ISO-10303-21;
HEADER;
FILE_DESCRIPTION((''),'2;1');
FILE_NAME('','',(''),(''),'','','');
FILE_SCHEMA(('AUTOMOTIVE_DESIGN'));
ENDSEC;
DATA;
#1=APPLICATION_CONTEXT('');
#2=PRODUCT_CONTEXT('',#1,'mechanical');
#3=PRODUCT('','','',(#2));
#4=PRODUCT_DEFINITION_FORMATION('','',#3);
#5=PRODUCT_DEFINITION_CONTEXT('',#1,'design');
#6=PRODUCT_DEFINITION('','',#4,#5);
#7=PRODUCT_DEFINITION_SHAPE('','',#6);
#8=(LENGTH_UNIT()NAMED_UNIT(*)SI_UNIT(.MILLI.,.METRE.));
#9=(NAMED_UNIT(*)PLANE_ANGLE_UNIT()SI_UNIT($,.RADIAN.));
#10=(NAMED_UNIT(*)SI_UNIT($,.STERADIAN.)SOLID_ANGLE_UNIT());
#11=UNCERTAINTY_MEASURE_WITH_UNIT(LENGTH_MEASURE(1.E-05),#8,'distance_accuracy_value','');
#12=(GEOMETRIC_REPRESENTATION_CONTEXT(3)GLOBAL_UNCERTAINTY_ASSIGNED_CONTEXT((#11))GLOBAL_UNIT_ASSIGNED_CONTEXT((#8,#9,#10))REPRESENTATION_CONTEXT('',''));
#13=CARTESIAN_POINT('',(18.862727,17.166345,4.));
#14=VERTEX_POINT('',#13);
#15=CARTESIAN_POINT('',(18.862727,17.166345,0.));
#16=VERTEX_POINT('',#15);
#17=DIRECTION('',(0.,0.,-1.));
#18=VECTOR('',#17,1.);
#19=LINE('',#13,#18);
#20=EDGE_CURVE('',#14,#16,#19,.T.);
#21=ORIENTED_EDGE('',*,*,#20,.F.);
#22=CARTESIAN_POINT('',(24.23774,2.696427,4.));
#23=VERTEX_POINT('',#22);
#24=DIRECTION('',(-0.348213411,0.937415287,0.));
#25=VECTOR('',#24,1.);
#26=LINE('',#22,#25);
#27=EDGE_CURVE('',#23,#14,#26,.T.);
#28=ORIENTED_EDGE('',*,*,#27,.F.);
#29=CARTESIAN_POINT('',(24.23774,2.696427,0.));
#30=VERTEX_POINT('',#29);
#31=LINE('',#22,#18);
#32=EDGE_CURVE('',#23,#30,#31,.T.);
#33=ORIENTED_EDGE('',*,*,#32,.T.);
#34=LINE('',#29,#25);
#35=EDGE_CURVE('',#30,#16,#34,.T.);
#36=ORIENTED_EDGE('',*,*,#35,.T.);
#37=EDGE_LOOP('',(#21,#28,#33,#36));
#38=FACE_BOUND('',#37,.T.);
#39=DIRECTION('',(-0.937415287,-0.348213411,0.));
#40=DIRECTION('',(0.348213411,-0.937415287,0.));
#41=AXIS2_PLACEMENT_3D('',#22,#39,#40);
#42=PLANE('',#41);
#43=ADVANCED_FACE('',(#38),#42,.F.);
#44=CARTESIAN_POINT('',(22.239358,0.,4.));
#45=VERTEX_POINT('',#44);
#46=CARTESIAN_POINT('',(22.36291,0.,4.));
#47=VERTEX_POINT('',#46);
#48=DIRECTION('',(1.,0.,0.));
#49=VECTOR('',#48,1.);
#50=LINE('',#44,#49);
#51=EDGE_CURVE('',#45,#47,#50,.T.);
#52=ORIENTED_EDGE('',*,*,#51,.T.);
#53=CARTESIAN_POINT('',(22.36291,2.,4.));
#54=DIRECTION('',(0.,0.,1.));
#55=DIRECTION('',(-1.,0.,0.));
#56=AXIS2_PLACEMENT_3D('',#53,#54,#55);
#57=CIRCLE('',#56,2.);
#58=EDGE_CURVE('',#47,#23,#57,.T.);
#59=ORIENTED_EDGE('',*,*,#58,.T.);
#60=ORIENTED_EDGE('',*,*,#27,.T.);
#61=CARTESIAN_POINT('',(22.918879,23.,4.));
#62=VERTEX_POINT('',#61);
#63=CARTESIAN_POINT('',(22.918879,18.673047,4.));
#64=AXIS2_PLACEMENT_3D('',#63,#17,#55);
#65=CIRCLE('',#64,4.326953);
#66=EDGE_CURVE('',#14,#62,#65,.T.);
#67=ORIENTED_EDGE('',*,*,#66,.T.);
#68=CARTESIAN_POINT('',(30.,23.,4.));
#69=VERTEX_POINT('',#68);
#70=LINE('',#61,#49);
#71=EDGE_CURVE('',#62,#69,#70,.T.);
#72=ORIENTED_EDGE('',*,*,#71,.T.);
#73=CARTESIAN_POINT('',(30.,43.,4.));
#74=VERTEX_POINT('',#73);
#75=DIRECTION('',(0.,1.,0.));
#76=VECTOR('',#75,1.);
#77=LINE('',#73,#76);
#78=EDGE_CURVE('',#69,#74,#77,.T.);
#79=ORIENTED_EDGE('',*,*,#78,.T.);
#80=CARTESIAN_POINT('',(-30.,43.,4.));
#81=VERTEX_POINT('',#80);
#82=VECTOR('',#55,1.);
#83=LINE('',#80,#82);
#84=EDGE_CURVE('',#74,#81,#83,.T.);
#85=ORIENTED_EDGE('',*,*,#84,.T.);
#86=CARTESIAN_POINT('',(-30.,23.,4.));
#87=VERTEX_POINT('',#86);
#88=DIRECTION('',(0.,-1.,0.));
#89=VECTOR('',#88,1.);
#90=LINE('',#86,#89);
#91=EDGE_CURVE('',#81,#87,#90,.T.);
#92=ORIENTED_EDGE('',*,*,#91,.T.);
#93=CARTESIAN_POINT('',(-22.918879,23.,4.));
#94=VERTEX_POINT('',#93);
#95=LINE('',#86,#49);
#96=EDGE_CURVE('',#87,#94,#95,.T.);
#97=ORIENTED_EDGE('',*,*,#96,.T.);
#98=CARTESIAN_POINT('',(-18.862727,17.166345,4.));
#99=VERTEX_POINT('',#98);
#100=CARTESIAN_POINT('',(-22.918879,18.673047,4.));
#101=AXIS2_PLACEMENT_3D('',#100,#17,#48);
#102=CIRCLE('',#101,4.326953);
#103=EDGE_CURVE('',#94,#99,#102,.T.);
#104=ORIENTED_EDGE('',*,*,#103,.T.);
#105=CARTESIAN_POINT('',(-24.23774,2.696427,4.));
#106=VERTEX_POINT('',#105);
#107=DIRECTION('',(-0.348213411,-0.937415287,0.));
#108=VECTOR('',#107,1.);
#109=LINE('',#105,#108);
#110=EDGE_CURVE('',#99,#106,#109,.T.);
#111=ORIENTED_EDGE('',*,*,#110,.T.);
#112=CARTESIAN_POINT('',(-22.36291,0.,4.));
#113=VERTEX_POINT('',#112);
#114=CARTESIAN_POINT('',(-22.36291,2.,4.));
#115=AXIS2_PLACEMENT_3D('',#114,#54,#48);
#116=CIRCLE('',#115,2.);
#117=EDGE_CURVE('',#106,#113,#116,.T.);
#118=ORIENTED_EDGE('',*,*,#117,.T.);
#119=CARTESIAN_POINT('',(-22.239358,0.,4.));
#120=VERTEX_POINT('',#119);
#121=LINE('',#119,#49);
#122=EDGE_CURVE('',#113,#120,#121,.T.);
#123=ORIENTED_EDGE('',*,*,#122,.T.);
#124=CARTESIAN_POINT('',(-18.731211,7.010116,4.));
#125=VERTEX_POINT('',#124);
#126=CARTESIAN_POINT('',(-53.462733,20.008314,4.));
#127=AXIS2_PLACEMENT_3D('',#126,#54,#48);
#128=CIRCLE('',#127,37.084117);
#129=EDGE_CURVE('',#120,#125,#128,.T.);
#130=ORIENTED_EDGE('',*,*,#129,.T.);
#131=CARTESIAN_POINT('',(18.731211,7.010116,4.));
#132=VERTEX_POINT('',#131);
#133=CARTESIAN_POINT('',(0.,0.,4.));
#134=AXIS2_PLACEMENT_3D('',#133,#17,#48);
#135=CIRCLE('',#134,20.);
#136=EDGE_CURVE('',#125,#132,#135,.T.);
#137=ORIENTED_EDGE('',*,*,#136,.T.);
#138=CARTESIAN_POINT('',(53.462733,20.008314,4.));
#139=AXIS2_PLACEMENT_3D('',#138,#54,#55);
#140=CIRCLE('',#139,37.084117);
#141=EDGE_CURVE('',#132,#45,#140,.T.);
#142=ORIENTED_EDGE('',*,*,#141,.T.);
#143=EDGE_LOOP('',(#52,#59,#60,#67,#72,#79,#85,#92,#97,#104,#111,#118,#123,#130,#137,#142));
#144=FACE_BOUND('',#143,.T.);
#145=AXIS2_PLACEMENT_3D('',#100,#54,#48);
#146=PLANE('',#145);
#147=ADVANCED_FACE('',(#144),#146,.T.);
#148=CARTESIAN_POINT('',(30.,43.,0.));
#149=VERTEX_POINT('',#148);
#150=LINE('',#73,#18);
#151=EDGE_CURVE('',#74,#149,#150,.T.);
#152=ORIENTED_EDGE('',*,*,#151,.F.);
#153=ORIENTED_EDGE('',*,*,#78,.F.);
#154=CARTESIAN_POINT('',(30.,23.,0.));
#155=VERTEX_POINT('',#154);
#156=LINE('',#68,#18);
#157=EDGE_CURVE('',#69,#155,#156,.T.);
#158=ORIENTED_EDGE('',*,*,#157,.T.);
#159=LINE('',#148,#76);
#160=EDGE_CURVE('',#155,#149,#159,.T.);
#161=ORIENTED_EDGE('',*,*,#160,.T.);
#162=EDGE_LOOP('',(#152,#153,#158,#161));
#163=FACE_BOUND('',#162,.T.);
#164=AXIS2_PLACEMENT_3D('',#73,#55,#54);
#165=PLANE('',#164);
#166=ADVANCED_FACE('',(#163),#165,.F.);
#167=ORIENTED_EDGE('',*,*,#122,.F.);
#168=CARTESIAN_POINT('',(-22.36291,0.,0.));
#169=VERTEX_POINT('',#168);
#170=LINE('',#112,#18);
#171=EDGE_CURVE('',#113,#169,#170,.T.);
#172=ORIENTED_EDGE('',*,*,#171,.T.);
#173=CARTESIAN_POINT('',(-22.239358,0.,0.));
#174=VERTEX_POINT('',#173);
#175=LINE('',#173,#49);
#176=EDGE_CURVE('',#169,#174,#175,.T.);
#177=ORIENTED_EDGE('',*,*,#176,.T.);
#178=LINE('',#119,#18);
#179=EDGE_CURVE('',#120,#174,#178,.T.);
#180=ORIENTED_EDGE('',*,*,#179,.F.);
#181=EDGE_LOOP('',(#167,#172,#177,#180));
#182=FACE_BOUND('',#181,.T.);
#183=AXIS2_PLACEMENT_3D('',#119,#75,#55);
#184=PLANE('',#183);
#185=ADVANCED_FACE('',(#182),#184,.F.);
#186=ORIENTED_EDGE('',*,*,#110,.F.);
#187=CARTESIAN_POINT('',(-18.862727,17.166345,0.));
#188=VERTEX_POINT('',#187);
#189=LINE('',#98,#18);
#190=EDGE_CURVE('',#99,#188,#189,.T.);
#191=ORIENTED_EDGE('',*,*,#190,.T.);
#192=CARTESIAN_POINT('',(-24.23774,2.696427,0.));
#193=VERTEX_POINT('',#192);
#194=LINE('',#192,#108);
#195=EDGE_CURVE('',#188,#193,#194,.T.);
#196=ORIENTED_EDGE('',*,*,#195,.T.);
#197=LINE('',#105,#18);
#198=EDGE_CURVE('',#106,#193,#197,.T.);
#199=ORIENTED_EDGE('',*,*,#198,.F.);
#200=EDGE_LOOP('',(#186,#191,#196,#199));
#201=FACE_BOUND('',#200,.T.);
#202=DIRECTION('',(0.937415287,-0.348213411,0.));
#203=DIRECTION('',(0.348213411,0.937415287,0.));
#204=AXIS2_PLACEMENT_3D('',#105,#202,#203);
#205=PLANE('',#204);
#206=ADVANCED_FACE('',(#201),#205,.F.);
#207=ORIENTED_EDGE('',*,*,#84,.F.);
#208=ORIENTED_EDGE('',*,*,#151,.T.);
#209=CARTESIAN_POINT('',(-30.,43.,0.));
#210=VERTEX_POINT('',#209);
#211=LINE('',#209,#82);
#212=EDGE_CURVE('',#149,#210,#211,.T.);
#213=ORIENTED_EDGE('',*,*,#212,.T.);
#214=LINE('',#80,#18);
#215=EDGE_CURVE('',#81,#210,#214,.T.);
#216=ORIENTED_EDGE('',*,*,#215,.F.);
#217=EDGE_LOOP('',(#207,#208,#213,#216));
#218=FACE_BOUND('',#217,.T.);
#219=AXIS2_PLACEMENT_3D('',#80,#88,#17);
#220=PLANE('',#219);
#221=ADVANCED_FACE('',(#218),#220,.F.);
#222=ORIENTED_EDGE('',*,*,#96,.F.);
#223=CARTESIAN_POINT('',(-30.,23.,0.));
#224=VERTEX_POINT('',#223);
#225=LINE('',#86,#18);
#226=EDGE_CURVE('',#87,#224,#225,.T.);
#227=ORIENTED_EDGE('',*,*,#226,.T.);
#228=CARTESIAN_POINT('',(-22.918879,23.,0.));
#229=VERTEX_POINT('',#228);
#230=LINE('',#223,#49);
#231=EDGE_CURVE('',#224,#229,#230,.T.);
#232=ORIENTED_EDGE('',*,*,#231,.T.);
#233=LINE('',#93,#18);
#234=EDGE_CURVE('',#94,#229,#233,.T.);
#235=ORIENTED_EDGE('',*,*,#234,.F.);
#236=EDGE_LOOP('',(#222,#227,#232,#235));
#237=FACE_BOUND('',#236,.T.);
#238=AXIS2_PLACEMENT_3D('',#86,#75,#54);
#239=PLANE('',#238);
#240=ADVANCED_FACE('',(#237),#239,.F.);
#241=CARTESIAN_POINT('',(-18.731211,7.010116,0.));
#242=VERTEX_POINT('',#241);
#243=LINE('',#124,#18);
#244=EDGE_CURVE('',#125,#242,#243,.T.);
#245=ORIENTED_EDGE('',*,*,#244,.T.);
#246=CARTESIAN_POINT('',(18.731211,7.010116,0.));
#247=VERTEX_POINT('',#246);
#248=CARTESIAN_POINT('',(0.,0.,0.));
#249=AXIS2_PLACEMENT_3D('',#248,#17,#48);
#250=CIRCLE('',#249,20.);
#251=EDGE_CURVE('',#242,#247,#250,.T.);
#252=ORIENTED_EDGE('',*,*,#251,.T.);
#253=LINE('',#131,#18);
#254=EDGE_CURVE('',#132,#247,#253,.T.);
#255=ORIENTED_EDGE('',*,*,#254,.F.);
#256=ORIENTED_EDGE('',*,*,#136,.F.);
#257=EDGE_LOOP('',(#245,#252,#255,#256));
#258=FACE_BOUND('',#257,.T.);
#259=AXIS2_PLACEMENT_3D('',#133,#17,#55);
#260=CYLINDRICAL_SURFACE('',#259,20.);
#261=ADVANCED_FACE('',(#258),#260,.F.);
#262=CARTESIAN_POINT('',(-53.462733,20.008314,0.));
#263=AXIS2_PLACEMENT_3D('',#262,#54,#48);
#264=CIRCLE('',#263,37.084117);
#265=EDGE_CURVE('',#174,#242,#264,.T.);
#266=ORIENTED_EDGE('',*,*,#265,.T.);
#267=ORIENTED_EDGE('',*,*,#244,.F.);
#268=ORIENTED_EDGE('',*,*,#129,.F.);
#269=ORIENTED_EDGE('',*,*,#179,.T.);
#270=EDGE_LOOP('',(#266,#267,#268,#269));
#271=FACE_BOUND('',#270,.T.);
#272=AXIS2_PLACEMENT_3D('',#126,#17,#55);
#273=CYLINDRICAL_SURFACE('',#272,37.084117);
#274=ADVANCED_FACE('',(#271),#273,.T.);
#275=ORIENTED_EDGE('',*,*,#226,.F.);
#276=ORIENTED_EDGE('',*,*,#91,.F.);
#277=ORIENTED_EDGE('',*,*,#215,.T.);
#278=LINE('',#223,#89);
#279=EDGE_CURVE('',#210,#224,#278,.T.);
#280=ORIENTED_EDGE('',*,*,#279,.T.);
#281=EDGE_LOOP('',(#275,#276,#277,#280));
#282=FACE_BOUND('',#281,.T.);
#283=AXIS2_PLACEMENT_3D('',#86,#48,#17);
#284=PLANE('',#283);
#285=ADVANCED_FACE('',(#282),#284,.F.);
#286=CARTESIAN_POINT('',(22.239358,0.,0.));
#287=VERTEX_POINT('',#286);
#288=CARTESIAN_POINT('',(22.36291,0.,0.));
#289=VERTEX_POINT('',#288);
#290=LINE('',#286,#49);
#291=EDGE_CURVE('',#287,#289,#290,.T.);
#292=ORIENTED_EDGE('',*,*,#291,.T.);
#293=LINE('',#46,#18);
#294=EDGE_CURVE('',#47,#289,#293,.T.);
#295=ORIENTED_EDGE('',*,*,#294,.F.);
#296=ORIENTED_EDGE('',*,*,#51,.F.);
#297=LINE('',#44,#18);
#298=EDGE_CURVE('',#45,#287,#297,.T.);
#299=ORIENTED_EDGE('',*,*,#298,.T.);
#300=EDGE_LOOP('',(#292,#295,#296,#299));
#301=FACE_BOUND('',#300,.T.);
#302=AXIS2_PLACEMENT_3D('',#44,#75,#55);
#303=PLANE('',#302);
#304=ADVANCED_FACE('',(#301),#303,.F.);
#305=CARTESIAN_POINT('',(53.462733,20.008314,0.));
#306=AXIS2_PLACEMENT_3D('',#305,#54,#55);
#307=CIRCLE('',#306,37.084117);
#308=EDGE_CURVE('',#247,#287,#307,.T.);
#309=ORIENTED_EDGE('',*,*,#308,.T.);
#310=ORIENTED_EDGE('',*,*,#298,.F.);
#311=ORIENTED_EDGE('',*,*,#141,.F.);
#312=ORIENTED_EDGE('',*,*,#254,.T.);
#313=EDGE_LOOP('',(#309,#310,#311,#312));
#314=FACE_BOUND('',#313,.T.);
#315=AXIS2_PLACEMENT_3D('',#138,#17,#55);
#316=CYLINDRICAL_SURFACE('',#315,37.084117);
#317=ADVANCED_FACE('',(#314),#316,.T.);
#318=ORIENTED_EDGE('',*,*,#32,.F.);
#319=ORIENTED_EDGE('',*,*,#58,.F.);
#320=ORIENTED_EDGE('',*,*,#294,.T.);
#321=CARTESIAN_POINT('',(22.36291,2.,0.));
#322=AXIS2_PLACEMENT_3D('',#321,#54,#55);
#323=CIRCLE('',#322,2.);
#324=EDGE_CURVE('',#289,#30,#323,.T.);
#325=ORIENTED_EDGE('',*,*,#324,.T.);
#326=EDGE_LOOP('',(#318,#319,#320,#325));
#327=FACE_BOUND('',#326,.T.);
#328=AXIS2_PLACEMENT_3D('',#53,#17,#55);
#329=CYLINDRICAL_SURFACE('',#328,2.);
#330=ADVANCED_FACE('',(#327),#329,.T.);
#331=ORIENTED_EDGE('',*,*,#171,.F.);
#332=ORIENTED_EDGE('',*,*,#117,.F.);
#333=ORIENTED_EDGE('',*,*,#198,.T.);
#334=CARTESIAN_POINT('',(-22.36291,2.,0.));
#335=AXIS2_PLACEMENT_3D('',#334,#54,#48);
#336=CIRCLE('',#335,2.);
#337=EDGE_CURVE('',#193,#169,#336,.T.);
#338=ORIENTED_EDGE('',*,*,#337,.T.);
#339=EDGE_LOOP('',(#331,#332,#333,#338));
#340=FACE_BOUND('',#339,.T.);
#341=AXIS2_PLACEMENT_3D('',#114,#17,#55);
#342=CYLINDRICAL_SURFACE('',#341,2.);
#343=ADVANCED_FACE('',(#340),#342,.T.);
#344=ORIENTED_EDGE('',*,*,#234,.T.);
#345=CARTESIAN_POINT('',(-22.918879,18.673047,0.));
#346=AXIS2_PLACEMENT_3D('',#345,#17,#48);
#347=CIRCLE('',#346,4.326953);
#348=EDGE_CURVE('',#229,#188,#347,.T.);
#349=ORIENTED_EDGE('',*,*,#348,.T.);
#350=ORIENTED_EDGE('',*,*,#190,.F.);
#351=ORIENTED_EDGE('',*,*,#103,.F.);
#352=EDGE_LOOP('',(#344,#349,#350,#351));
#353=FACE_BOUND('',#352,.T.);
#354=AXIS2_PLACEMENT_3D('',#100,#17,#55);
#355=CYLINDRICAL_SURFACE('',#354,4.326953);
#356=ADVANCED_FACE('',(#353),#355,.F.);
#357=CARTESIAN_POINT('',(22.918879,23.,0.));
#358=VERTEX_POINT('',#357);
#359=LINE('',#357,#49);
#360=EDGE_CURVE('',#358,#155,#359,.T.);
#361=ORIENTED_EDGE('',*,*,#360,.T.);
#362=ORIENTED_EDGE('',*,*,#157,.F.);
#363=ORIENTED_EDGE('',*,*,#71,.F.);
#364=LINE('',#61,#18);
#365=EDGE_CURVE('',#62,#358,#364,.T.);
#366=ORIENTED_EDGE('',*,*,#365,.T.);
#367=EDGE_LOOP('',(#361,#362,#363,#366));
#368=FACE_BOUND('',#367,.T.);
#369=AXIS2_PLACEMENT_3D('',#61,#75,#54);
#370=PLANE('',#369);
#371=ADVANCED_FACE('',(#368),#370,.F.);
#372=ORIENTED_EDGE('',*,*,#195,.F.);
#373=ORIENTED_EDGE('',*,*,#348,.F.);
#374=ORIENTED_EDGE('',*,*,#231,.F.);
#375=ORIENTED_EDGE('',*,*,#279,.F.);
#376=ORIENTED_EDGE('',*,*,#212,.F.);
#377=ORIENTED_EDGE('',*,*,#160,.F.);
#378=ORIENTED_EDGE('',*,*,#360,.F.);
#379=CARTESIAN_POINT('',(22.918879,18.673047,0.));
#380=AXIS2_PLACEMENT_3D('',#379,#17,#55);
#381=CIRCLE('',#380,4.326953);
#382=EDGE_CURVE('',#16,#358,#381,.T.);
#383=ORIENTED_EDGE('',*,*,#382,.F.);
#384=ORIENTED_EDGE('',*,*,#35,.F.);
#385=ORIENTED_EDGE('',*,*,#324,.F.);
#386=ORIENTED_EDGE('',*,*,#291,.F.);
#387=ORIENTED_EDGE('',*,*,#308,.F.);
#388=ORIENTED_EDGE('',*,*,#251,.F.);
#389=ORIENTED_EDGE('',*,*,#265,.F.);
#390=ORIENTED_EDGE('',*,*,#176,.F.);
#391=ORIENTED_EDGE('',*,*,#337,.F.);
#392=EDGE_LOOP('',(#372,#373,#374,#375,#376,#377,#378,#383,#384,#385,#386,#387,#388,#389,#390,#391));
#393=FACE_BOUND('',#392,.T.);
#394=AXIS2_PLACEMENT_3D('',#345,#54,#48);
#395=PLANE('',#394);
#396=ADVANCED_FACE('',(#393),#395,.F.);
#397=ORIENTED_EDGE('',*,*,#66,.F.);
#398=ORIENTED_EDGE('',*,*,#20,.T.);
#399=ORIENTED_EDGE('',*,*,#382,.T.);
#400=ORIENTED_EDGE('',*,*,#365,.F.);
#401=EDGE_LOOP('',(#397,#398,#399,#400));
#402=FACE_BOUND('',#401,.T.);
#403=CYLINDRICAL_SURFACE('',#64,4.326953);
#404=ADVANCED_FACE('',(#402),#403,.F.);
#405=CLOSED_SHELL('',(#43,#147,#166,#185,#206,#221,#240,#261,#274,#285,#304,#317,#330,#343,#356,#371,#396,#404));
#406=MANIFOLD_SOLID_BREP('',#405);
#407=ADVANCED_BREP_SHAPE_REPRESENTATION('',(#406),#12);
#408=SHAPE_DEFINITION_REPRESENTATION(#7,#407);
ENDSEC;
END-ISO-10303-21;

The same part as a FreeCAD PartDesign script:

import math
import FreeCAD as App
import Part
import Sketcher
Q = App.Units.Quantity

doc = App.newDocument("Part")
body = doc.addObject("PartDesign::Body", "Body")

# Sketch on XY plane
sketch1 = body.newObject("Sketcher::SketchObject", "Sketch")
sketch1.AttachmentSupport = (doc.getObject("XY_Plane"), [""])
sketch1.MapMode = "FlatFace"
sketch1.addGeometry([
    Part.LineSegment(App.Vector(-22.36, 0, 0), App.Vector(-22.24, 0, 0)),  # 0
    Part.ArcOfCircle(Part.Circle(App.Vector(-53.46, 20.01, 0), App.Vector(0, 0, 1), 37.08), math.radians(-32.65), math.radians(-20.52)),  # 1
    Part.ArcOfCircle(Part.Circle(App.Vector(0, 0, 0), App.Vector(0, 0, 1), 20), math.radians(21), math.radians(159)),  # 2
    Part.ArcOfCircle(Part.Circle(App.Vector(53.46, 20.01, 0), App.Vector(0, 0, 1), 37.08), math.radians(-159.48), math.radians(-147.35)),  # 3
    Part.LineSegment(App.Vector(22.24, 0, 0), App.Vector(22.36, 0, 0)),  # 4
    Part.ArcOfCircle(Part.Circle(App.Vector(22.36, 2, 0), App.Vector(0, 0, 1), 2), math.radians(-90), math.radians(20)),  # 5
    Part.LineSegment(App.Vector(24.24, 2.7, 0), App.Vector(18.86, 17.17, 0)),  # 6
    Part.ArcOfCircle(Part.Circle(App.Vector(22.92, 18.67, 0), App.Vector(0, 0, 1), 4.33), math.radians(90), math.radians(200)),  # 7
    Part.LineSegment(App.Vector(22.92, 23, 0), App.Vector(30, 23, 0)),  # 8
    Part.LineSegment(App.Vector(30, 23, 0), App.Vector(30, 43, 0)),  # 9
    Part.LineSegment(App.Vector(30, 43, 0), App.Vector(-30, 43, 0)),  # 10
    Part.LineSegment(App.Vector(-30, 43, 0), App.Vector(-30, 23, 0)),  # 11
    Part.LineSegment(App.Vector(-30, 23, 0), App.Vector(-22.92, 23, 0)),  # 12
    Part.ArcOfCircle(Part.Circle(App.Vector(-22.92, 18.67, 0), App.Vector(0, 0, 1), 4.33), math.radians(-20), math.radians(90)),  # 13
    Part.LineSegment(App.Vector(-18.86, 17.17, 0), App.Vector(-24.24, 2.7, 0)),  # 14
    Part.ArcOfCircle(Part.Circle(App.Vector(-22.36, 2, 0), App.Vector(0, 0, 1), 2), math.radians(160), math.radians(270)),  # 15
], False)
sketch1.addConstraint([
    Sketcher.Constraint("Coincident", 0, 2, 1, 1),
    Sketcher.Constraint("Tangent", 1, 2, 2, 2),
    Sketcher.Constraint("Tangent", 2, 1, 3, 1),
    Sketcher.Constraint("Coincident", 3, 2, 4, 1),
    Sketcher.Constraint("Tangent", 4, 2, 5, 1),
    Sketcher.Constraint("Tangent", 5, 2, 6, 1),
    Sketcher.Constraint("Tangent", 6, 2, 7, 2),
    Sketcher.Constraint("Tangent", 7, 1, 8, 1),
    Sketcher.Constraint("Coincident", 8, 2, 9, 1),
    Sketcher.Constraint("Coincident", 9, 2, 10, 1),
    Sketcher.Constraint("Coincident", 10, 2, 11, 1),
    Sketcher.Constraint("Coincident", 11, 2, 12, 1),
    Sketcher.Constraint("Tangent", 12, 2, 13, 2),
    Sketcher.Constraint("Tangent", 13, 1, 14, 1),
    Sketcher.Constraint("Tangent", 14, 2, 15, 1),
    Sketcher.Constraint("Tangent", 15, 2, 0, 1),
    Sketcher.Constraint("Horizontal", 0),
    Sketcher.Constraint("Horizontal", 4),
    Sketcher.Constraint("Horizontal", 8),
    Sketcher.Constraint("Vertical", 9),
    Sketcher.Constraint("Horizontal", 10),
    Sketcher.Constraint("Vertical", 11),
    Sketcher.Constraint("Horizontal", 12),
    Sketcher.Constraint("Coincident", 2, 3, -1, 1),
    Sketcher.Constraint("Equal", 1, 3),
    Sketcher.Constraint("Equal", 7, 13),
    Sketcher.Constraint("Equal", 5, 15),
    Sketcher.Constraint("Symmetric", 0, 2, 3, 2, -1, 1),
    Sketcher.Constraint("Symmetric", 7, 3, 13, 3, -2),
    Sketcher.Constraint("Symmetric", 5, 3, 15, 3, -2),
    Sketcher.Constraint("Equal", 8, 12),
    Sketcher.Constraint("Radius", 2, Q("20 mm")),
    Sketcher.Constraint("Radius", 5, Q("2 mm")),
    Sketcher.Constraint("DistanceX", 10, 2, 10, 1, Q("60 mm")),
    Sketcher.Constraint("DistanceY", 9, 1, 9, 2, Q("20 mm")),
    Sketcher.Constraint("DistanceY", -1, 1, 7, 1, Q("23 mm")),
    Sketcher.Constraint("Radius", 1, Q("37.084117 mm")),
    Sketcher.Constraint("Radius", 7, Q("4.326953 mm")),
    Sketcher.Constraint("DistanceX", 0, 1, 0, 2, Q("0.123551 mm")),
    Sketcher.Constraint("DistanceX", 8, 1, 8, 2, Q("7.081121 mm")),
    Sketcher.Constraint("DistanceX", 15, 3, 1, 2, Q("3.631698 mm")),
])
pad1 = body.newObject("PartDesign::Pad", "Pad")
pad1.Profile = sketch1
pad1.Length = 4

doc.recompute()
